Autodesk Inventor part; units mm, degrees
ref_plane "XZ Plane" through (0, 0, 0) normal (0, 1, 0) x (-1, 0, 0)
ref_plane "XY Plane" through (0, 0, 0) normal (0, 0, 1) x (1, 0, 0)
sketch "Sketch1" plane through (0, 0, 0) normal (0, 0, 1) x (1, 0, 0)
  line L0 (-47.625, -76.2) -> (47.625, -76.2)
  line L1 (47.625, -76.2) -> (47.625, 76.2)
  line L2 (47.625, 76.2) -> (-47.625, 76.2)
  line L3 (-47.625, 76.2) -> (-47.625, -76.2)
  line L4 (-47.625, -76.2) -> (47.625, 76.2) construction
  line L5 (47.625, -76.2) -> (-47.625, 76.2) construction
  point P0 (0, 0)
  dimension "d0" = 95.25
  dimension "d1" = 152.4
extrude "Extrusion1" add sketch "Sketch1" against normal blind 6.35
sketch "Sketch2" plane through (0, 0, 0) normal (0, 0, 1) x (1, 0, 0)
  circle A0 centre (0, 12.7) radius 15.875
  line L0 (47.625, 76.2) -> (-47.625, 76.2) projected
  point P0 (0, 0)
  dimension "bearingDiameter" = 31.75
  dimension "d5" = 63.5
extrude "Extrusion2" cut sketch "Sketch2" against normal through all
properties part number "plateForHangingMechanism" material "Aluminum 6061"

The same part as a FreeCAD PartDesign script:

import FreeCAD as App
import Part
import Sketcher
from FreeCAD import Vector
Q = App.Units.Quantity


def add_polygon(sketch, points):
    """Adds a closed chain of lines whose ends are joined by coincident constraints."""
    first, n = sketch.GeometryCount, len(points)
    for a, b in zip(points, points[1:] + points[:1]):
        sketch.addGeometry(Part.LineSegment(App.Vector(*a, 0), App.Vector(*b, 0)), False)
    for i in range(n):
        sketch.addConstraint(Sketcher.Constraint("Coincident", first + i, 2, first + (i + 1) % n, 1))

doc = App.newDocument("Part")
body = doc.addObject("PartDesign::Body", "Body")

sketch1 = body.newObject("Sketcher::SketchObject", "Sketch")
sketch1.AttachmentSupport = (doc.getObject("XY_Plane"), [""])
sketch1.MapMode = "FlatFace"
add_polygon(sketch1, [(-47.625, 76.2), (-47.625, -76.2), (47.625, -76.2), (47.625, 76.2)])
sketch1.addConstraint([
    Sketcher.Constraint("Vertical", 0),
    Sketcher.Constraint("Horizontal", 1),
    Sketcher.Constraint("Vertical", 2),
    Sketcher.Constraint("Horizontal", 3),
    Sketcher.Constraint("Symmetric", 0, 2, 2, 2, -1, 1),
    Sketcher.Constraint("DistanceY", 0, 2, 0, 1, Q("6 in")),
    Sketcher.Constraint("DistanceX", 1, 1, 1, 2, Q("3.75 in")),
])
pad1 = body.newObject("PartDesign::Pad", "Pad")
pad1.Profile = sketch1
pad1.Length = Q("0.25 in")
pad1.Reversed = True

sketch2 = body.newObject("Sketcher::SketchObject", "Sketch001")
sketch2.AttachmentSupport = (doc.getObject("XY_Plane"), [""])
sketch2.MapMode = "FlatFace"
sketch2.addGeometry(Part.Circle(Vector(0, 12.7, 0), Vector(0, 0, 1), 15.875), False)
sketch2.addConstraint([
    Sketcher.Constraint("PointOnObject", 0, 3, -2),
    Sketcher.Constraint("Diameter", 0, Q("1.25 in")),
    Sketcher.Constraint("DistanceY", -1, 1, 0, 3, Q("0.5 in")),
])
pocket1 = body.newObject("PartDesign::Pocket", "Pocket")
pocket1.Profile = sketch2
pocket1.Type = "ThroughAll"

doc.recompute()
